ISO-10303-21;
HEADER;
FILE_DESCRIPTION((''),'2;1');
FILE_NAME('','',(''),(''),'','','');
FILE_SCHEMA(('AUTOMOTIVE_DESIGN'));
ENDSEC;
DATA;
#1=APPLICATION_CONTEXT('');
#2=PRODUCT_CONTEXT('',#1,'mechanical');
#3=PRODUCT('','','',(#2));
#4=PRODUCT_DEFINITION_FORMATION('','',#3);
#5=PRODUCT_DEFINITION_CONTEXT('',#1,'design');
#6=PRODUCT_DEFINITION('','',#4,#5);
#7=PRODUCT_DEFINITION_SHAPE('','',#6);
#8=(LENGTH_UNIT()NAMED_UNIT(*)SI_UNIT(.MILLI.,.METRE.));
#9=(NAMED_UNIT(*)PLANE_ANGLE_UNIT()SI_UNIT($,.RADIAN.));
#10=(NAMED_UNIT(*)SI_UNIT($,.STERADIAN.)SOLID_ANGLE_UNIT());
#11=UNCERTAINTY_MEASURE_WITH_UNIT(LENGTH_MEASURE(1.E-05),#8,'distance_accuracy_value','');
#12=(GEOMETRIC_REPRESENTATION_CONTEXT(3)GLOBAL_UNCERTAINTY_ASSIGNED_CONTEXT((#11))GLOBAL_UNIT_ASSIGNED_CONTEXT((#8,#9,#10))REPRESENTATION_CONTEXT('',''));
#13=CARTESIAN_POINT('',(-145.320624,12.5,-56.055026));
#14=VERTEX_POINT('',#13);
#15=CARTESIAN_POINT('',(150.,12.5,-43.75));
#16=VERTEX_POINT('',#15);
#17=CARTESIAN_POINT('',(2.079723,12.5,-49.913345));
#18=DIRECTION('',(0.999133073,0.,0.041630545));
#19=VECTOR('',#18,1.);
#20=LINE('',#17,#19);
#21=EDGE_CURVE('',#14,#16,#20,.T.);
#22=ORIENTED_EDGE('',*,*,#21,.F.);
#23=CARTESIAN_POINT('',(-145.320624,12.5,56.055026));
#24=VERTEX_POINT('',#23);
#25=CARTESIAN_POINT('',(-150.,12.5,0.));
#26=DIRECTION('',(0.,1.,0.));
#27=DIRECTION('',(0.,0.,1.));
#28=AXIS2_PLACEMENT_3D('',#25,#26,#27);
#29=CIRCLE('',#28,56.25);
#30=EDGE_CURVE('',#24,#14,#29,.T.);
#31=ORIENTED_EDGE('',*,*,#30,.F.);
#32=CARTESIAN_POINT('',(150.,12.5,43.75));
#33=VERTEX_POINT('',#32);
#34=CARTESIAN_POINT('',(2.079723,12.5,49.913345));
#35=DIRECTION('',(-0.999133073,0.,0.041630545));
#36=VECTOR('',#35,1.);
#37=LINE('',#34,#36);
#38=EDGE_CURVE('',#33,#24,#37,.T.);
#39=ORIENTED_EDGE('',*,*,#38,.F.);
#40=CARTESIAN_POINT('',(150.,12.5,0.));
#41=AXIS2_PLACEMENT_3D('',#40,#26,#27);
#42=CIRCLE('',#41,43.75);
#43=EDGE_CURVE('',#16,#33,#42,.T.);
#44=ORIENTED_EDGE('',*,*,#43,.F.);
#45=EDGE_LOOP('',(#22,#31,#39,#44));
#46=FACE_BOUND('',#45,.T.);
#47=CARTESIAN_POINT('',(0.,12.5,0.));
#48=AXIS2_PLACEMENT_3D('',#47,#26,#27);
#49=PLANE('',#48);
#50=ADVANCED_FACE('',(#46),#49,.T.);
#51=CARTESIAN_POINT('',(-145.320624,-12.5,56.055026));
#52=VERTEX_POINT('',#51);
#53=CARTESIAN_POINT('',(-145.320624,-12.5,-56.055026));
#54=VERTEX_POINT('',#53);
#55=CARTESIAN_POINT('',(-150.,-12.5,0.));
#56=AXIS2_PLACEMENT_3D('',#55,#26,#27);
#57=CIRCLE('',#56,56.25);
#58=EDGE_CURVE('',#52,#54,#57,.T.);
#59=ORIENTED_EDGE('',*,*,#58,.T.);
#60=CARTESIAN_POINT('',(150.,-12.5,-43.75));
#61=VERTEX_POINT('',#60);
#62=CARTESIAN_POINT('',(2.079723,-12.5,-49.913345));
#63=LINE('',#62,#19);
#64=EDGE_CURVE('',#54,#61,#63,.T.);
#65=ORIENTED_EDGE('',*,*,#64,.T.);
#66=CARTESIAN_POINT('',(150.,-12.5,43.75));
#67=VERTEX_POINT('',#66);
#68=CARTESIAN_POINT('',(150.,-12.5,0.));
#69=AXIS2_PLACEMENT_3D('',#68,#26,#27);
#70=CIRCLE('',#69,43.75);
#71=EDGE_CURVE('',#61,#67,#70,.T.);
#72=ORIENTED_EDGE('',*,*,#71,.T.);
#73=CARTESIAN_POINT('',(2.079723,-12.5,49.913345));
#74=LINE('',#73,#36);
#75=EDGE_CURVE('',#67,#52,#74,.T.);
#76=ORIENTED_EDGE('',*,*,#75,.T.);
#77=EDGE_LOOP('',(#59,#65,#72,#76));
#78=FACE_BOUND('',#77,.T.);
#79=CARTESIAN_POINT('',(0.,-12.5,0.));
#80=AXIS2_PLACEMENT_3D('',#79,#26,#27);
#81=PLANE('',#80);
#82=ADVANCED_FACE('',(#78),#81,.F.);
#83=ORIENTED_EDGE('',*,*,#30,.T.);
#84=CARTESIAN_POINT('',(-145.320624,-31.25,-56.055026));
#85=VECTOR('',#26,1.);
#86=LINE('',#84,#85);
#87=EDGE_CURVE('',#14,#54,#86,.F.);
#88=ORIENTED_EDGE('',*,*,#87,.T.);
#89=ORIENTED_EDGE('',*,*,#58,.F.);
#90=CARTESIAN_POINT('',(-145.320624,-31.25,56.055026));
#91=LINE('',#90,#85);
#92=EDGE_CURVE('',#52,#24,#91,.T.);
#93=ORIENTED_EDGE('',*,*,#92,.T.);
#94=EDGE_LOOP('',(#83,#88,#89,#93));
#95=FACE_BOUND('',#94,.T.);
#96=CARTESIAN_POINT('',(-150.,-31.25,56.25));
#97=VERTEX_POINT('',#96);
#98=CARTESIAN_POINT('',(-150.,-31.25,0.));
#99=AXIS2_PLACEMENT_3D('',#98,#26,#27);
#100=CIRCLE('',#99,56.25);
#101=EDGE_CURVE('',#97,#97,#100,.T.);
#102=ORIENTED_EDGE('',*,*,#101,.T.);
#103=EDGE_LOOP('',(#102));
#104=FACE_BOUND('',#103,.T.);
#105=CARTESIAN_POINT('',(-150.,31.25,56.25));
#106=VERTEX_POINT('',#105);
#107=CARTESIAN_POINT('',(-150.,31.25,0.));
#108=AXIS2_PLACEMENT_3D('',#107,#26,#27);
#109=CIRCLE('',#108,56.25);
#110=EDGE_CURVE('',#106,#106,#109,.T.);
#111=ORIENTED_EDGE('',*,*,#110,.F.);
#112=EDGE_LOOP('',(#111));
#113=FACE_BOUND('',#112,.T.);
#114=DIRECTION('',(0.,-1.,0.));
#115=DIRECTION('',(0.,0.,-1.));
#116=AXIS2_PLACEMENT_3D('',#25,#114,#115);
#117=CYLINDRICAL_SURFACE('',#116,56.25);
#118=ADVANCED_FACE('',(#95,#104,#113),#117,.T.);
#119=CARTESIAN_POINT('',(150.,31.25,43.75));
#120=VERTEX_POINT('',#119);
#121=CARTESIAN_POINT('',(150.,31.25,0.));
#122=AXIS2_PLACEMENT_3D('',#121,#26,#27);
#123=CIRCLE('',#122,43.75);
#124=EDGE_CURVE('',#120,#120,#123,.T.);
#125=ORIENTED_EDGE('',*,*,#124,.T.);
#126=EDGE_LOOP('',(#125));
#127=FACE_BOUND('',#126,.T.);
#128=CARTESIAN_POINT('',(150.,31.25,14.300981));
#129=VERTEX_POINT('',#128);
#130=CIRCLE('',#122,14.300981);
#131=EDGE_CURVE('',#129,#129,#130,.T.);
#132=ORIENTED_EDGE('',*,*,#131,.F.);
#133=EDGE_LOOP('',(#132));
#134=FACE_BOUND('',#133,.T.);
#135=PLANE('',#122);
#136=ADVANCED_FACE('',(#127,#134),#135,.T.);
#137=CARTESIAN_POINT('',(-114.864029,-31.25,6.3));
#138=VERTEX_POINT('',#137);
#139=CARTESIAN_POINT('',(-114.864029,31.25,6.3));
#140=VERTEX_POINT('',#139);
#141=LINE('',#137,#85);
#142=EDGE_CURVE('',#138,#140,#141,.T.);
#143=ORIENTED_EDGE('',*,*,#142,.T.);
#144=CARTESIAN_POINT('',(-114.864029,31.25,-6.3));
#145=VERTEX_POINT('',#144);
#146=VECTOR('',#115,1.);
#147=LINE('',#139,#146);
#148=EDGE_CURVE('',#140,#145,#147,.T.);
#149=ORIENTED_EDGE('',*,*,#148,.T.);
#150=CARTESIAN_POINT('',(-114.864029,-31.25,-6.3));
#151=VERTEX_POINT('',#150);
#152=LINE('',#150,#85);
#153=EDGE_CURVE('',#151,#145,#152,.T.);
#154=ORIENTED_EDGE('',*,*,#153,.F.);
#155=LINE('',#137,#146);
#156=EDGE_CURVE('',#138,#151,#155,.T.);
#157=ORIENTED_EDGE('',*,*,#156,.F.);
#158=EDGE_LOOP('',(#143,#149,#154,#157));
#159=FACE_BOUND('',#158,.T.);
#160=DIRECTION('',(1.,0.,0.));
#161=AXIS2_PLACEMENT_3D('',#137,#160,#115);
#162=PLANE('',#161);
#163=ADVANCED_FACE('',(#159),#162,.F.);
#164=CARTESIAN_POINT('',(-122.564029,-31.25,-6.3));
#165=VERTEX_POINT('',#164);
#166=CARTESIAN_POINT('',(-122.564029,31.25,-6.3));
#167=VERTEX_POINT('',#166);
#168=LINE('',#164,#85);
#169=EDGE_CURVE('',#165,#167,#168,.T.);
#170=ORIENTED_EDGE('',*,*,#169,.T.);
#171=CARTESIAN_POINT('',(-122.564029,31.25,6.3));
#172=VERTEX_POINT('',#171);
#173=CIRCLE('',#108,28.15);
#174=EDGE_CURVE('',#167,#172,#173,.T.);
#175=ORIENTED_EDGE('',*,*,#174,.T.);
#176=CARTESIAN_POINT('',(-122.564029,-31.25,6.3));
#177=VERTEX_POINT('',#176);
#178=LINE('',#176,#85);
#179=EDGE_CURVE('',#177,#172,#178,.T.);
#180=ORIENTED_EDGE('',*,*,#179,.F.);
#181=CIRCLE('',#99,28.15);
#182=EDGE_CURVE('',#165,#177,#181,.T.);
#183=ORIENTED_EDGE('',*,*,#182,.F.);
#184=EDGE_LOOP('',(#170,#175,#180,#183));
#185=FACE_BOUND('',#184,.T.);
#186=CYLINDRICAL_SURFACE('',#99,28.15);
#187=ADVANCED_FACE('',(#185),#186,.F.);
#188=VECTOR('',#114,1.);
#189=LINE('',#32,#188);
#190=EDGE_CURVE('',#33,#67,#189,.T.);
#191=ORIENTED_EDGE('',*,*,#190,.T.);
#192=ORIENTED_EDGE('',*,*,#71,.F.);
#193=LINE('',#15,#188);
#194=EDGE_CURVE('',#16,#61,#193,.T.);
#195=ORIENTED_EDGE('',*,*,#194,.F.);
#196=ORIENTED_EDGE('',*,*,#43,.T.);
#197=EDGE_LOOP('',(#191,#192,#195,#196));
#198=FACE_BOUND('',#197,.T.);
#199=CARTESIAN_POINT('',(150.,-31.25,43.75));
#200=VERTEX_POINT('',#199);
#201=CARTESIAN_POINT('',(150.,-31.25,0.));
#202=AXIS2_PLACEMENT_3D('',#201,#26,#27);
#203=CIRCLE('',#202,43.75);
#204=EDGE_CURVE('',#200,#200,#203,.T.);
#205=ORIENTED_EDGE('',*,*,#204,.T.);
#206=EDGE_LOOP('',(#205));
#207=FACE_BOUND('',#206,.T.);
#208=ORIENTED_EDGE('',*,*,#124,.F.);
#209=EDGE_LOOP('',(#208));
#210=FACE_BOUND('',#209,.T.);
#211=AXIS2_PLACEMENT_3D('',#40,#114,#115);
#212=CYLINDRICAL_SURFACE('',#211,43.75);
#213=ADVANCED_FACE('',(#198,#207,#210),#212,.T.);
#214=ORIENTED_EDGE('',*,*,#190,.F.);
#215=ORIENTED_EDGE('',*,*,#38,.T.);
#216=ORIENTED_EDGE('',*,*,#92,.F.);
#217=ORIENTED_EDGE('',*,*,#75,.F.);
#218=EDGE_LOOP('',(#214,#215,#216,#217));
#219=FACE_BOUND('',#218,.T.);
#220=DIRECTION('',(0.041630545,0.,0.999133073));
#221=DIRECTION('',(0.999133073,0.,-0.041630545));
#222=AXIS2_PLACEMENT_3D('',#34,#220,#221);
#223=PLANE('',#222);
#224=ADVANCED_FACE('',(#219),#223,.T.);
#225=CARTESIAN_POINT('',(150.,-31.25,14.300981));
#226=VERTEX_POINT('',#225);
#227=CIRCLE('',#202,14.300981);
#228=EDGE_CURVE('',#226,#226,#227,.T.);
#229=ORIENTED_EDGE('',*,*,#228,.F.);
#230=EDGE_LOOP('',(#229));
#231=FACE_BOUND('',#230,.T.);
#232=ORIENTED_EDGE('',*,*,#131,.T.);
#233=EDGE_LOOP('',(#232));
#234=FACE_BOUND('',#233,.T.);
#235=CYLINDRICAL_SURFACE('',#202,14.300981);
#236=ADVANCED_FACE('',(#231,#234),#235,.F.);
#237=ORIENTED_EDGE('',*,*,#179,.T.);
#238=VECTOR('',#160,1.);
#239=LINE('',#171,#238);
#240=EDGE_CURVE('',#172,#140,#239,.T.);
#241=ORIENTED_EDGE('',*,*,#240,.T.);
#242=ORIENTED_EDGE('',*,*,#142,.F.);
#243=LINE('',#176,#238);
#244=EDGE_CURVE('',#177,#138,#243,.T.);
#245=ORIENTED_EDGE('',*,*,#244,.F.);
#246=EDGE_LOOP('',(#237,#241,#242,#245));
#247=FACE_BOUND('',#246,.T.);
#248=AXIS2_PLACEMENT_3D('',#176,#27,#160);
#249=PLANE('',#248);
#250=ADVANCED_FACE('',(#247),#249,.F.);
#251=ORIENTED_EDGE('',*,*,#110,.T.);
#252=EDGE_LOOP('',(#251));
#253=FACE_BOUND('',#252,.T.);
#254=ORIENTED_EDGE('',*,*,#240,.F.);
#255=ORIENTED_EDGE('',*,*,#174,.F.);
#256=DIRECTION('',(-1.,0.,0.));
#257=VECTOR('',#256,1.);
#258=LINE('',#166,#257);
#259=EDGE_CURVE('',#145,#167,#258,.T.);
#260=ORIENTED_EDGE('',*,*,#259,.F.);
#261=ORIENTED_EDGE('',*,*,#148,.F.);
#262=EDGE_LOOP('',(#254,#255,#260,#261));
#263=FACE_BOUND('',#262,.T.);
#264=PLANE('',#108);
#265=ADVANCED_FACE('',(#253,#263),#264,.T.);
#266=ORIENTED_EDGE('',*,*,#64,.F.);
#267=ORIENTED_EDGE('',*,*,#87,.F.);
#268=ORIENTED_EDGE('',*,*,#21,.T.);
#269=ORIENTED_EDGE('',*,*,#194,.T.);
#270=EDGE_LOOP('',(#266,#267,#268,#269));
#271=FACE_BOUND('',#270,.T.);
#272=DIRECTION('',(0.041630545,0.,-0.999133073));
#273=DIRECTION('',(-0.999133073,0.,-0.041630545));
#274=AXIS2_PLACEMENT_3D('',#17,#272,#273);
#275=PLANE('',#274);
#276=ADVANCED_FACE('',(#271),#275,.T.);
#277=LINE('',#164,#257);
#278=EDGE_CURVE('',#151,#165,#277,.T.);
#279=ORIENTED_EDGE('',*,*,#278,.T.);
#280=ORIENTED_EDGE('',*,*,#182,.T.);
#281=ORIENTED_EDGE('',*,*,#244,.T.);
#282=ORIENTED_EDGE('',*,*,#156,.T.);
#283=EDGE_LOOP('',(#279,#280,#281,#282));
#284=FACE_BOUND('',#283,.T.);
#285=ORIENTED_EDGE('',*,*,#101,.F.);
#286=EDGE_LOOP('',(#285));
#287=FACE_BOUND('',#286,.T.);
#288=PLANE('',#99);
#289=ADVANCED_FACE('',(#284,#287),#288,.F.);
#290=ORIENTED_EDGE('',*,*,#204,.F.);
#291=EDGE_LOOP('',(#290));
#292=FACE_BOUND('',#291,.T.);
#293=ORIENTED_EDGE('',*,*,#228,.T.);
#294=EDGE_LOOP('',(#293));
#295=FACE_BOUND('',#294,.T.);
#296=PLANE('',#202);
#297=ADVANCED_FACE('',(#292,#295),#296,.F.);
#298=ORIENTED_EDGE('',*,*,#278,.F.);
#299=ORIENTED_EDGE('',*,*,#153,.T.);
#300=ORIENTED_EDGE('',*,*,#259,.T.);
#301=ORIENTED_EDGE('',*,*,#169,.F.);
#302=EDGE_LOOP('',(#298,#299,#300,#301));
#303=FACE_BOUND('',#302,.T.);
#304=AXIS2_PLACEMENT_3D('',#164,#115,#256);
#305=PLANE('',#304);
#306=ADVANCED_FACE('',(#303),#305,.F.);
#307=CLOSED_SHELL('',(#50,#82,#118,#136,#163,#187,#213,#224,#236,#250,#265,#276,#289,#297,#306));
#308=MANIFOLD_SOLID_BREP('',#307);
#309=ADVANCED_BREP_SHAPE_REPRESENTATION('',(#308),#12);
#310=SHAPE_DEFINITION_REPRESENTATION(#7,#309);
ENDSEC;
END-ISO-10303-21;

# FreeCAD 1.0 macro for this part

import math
import FreeCAD as App
import Part
import Sketcher
from FreeCAD import Vector

doc = App.newDocument("Part")
body = doc.addObject("PartDesign::Body", "Body")

sketch1 = body.newObject("Sketcher::SketchObject", "Sketch")
sketch1.AttachmentSupport = (doc.getObject("XZ_Plane"), [""])
sketch1.MapMode = "FlatFace"
sketch1.addGeometry(Part.LineSegment(Vector(-145.320624, -56.055026, 0), Vector(-150, -56.25, 0)), False)
sketch1.addGeometry(Part.ArcOfCircle(Part.Circle(Vector(-150, 0, 0), Vector(0, 0, 1), 56.25), math.radians(90), math.radians(270)), False)
sketch1.addGeometry(Part.LineSegment(Vector(-150, 56.25, 0), Vector(-145.320624, 56.055026, 0)), False)
sketch1.addGeometry(Part.LineSegment(Vector(-145.320624, 56.055026, 0), Vector(150, 43.75, 0)), False)
sketch1.addGeometry(Part.ArcOfCircle(Part.Circle(Vector(150, 0, 0), Vector(0, 0, 1), 43.75), math.radians(-90), math.radians(90)), False)
sketch1.addGeometry(Part.LineSegment(Vector(150, -43.75, 0), Vector(-145.320624, -56.055026, 0)), False)
sketch1.addGeometry(Part.ArcOfCircle(Part.Circle(Vector(-150, 0, 0), Vector(0, 0, 1), 28.15), math.radians(12.932387), math.radians(347.067613)), False)
sketch1.addGeometry(Part.LineSegment(Vector(-122.564029, -6.3, 0), Vector(-114.864029, -6.3, 0)), False)
sketch1.addGeometry(Part.LineSegment(Vector(-114.864029, -6.3, 0), Vector(-114.864029, 6.3, 0)), False)
sketch1.addGeometry(Part.LineSegment(Vector(-114.864029, 6.3, 0), Vector(-122.564029, 6.3, 0)), False)
sketch1.addGeometry(Part.Circle(Vector(150, 0, 0), Vector(0, 0, 1), 21.9), False)
sketch1.addConstraint(Sketcher.Constraint("Coincident", 0, 2, 1, 2))
sketch1.addConstraint(Sketcher.Constraint("Coincident", 1, 1, 2, 1))
sketch1.addConstraint(Sketcher.Constraint("Coincident", 2, 2, 3, 1))
sketch1.addConstraint(Sketcher.Constraint("Coincident", 3, 2, 4, 2))
sketch1.addConstraint(Sketcher.Constraint("Coincident", 4, 1, 5, 1))
sketch1.addConstraint(Sketcher.Constraint("Coincident", 5, 2, 0, 1))
sketch1.addConstraint(Sketcher.Constraint("Coincident", 6, 2, 7, 1))
sketch1.addConstraint(Sketcher.Constraint("Coincident", 7, 2, 8, 1))
sketch1.addConstraint(Sketcher.Constraint("Coincident", 8, 2, 9, 1))
sketch1.addConstraint(Sketcher.Constraint("Coincident", 9, 2, 6, 1))
sketch1.addConstraint(Sketcher.Constraint("Horizontal", 7))
sketch1.addConstraint(Sketcher.Constraint("Vertical", 8))
sketch1.addConstraint(Sketcher.Constraint("Horizontal", 9))
sketch1.addConstraint(Sketcher.Constraint("Coincident", 6, 3, 1, 3))
sketch1.addConstraint(Sketcher.Constraint("Coincident", 10, 3, 4, 3))
sketch1.addConstraint(Sketcher.Constraint("Symmetric", 1, 3, 4, 3, -1, 1))
sketch1.addConstraint(Sketcher.Constraint("Symmetric", 0, 2, 1, 1, -1))
sketch1.addConstraint(Sketcher.Constraint("Symmetric", 2, 2, 5, 2, -1))
sketch1.addConstraint(Sketcher.Constraint("Parallel", 2, 3))
sketch1.addConstraint(Sketcher.Constraint("Vertical", 6, 3, 0, 2))
sketch1.addConstraint(Sketcher.Constraint("Vertical", 10, 3, 3, 2))
sketch1.addConstraint(Sketcher.Constraint("Vertical", 3, 2, 4, 1))
sketch1.addConstraint(Sketcher.Constraint("Vertical", 6, 2, 9, 2))
sketch1.addConstraint(Sketcher.Constraint("Diameter", 10, 43.8))
sketch1.addConstraint(Sketcher.Constraint("Radius", 1, 56.25))
sketch1.addConstraint(Sketcher.Constraint("Radius", 4, 43.75))
sketch1.addConstraint(Sketcher.Constraint("Radius", 6, 28.15))
sketch1.addConstraint(Sketcher.Constraint("DistanceX", 7, 1, 7, 2, 7.7))
sketch1.addConstraint(Sketcher.Constraint("DistanceY", 8, 1, 8, 2, 12.6))
sketch1.addConstraint(Sketcher.Constraint("DistanceX", 1, 3, -1, 1, 150.0))
sketch1.addConstraint(Sketcher.Constraint("DistanceY", 5, 2, 2, 2, 112.110052))
pad1 = body.newObject("PartDesign::Pad", "Pad")
pad1.Profile = sketch1
pad1.Length = 25
pad1.Midplane = True

sketch2 = body.newObject("Sketcher::SketchObject", "Sketch001")
sketch2.AttachmentSupport = (doc.getObject("XZ_Plane"), [""])
sketch2.MapMode = "FlatFace"
sketch2.AttachmentOffset = App.Placement(Vector(0, 0, -12.5), App.Rotation())
sketch2.addGeometry(Part.Circle(Vector(150, 0, 0), Vector(0, 0, 1), 43.75), False)
sketch2.addGeometry(Part.Circle(Vector(-150, 0, 0), Vector(0, 0, 1), 56.25), False)
sketch2.addConstraint(Sketcher.Constraint("Symmetric", 0, 3, 1, 3, -1, 1))
sketch2.addConstraint(Sketcher.Constraint("PointOnObject", 0, 3, -1))
sketch2.addConstraint(Sketcher.Constraint("Diameter", 0, 87.5))
sketch2.addConstraint(Sketcher.Constraint("Diameter", 1, 112.5))
sketch2.addConstraint(Sketcher.Constraint("DistanceX", -1, 1, 0, 3, 150.0))
pad2 = body.newObject("PartDesign::Pad", "Pad001")
pad2.Profile = sketch2
pad2.Type = "TwoLengths"
pad2.Length = 18.75
pad2.Length2 = 43.75
pad2.Reversed = True

sketch3 = body.newObject("Sketcher::SketchObject", "Sketch002")
sketch3.AttachmentSupport = (doc.getObject("XZ_Plane"), [""])
sketch3.MapMode = "FlatFace"
sketch3.AttachmentOffset = App.Placement(Vector(0, 0, -31.25), App.Rotation())
sketch3.addGeometry(Part.Circle(Vector(150, 0, 0), Vector(0, 0, 1), 14.300981), False)
sketch3.addGeometry(Part.LineSegment(Vector(-114.864029, 6.3, 0), Vector(-114.864029, -6.3, 0)), False)
sketch3.addGeometry(Part.LineSegment(Vector(-114.864029, -6.3, 0), Vector(-122.564029, -6.3, 0)), False)
sketch3.addGeometry(Part.ArcOfCircle(Part.Circle(Vector(-150, 0, 0), Vector(0, 0, 1), 28.15), math.radians(12.932387), math.radians(347.067613)), False)
sketch3.addGeometry(Part.LineSegment(Vector(-122.564029, 6.3, 0), Vector(-114.864029, 6.3, 0)), False)
sketch3.addConstraint(Sketcher.Constraint("Coincident", 1, 2, 2, 1))
sketch3.addConstraint(Sketcher.Constraint("Coincident", 2, 2, 3, 2))
sketch3.addConstraint(Sketcher.Constraint("Coincident", 3, 1, 4, 1))
sketch3.addConstraint(Sketcher.Constraint("Coincident", 4, 2, 1, 1))
sketch3.addConstraint(Sketcher.Constraint("Vertical", 1))
sketch3.addConstraint(Sketcher.Constraint("Horizontal", 2))
sketch3.addConstraint(Sketcher.Constraint("Horizontal", 4))
sketch3.addConstraint(Sketcher.Constraint("Symmetric", 0, 3, 3, 3, -1, 1))
sketch3.addConstraint(Sketcher.Constraint("Symmetric", 2, 2, 3, 1, -1))
sketch3.addConstraint(Sketcher.Constraint("Radius", 3, 28.15))
sketch3.addConstraint(Sketcher.Constraint("DistanceX", 2, 2, 2, 1, 7.7))
sketch3.addConstraint(Sketcher.Constraint("DistanceY", 1, 2, 1, 1, 12.6))
sketch3.addConstraint(Sketcher.Constraint("DistanceX", -1, 1, 0, 3, 150.0))
sketch3.addConstraint(Sketcher.Constraint("Diameter", 0, 28.601963))
pocket1 = body.newObject("PartDesign::Pocket", "Pocket")
pocket1.Profile = sketch3
pocket1.Type = "ThroughAll"
pocket1.Reversed = True

doc.recompute()
